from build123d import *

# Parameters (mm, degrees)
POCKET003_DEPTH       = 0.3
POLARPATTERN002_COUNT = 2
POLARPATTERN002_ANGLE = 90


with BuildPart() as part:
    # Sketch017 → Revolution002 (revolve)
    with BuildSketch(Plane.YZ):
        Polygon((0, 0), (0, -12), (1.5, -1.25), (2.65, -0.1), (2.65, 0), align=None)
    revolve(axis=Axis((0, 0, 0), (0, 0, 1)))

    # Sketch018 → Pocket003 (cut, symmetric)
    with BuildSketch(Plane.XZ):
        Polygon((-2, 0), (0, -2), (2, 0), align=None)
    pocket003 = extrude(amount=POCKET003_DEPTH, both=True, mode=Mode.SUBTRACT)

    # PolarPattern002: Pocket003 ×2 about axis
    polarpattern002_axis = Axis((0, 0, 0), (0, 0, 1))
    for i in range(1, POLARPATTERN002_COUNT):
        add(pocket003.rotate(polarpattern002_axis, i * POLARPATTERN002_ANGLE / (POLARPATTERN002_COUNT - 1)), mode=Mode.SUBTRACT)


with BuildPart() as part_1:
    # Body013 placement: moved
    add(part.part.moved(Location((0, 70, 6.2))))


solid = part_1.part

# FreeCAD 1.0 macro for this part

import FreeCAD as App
import Part
import Sketcher

V = App.Vector
Q = App.Units.Quantity


def add_polygon(sketch, points):
    """Adds a closed chain of lines whose ends are joined by coincident constraints."""
    first, n = sketch.GeometryCount, len(points)
    for a, b in zip(points, points[1:] + points[:1]):
        sketch.addGeometry(Part.LineSegment(App.Vector(*a, 0), App.Vector(*b, 0)), False)
    for i in range(n):
        sketch.addConstraint(Sketcher.Constraint("Coincident", first + i, 2, first + (i + 1) % n, 1))

doc = App.newDocument("Part")
params = doc.addObject("Spreadsheet::Sheet", "Params")
for row, (alias, value) in enumerate([
    ("sketch1_height", "12 mm"),
    ("sketch1_height2", "0.1 mm"),
    ("sketch1_width", "2.65 mm"),
    ("revolution_angle", "360 deg"),
    ("sketch2_width", "4 mm"),
    ("pocket1_length", "0.6 mm"),
], start=1):
    params.set(f"A{row}", alias)
    params.set(f"B{row}", "=" + value)
    params.setAlias(f"B{row}", alias)

body = doc.addObject("PartDesign::Body", "Body")

# Sketch on YZ plane
sketch1 = body.newObject("Sketcher::SketchObject", "Sketch")
sketch1.AttachmentSupport = (doc.getObject("YZ_Plane"), [""])
sketch1.MapMode = "FlatFace"
add_polygon(sketch1, [(0, 0), (0, -12), (1.5, -1.25), (2.65, -0.1), (2.65, 0)])  # lines 0-4
sketch1.addConstraint(Sketcher.Constraint("Vertical", 0))
sketch1.addConstraint(Sketcher.Constraint("Vertical", 3))
sketch1.addConstraint(Sketcher.Constraint("Horizontal", 4))
sketch1.addConstraint(Sketcher.Constraint("Coincident", 4, 2, -1, 1))
sketch1.addConstraint(Sketcher.Constraint("DistanceY", 0, 2, 0, 1, Q("12 mm")))
sketch1.addConstraint(Sketcher.Constraint("Angle", 2, Q("45 deg")))
sketch1.addConstraint(Sketcher.Constraint("DistanceY", 3, 1, 3, 2, Q("0.1 mm")))
sketch1.addConstraint(Sketcher.Constraint("DistanceX", 4, 2, 4, 1, Q("2.65 mm")))
sketch1.addConstraint(Sketcher.Constraint("DistanceX", -1, 1, 1, 2, Q("1.5 mm")))
sketch1.setExpression("Constraints[9]", "Params.sketch1_height")
sketch1.setExpression("Constraints[11]", "Params.sketch1_height2")
sketch1.setExpression("Constraints[12]", "Params.sketch1_width")
revolution = body.newObject("PartDesign::Revolution", "Revolution")
revolution.Profile = sketch1
revolution.ReferenceAxis = (sketch1, ["V_Axis"])
revolution.setExpression("Angle", "Params.revolution_angle")

# Sketch on XZ plane
sketch2 = body.newObject("Sketcher::SketchObject", "Sketch001")
sketch2.AttachmentSupport = (doc.getObject("XZ_Plane"), [""])
sketch2.MapMode = "FlatFace"
add_polygon(sketch2, [(-2, 0), (0, -2), (2, 0)])  # lines 0-2
sketch2.addConstraint(Sketcher.Constraint("Horizontal", 2))
sketch2.addConstraint(Sketcher.Constraint("Symmetric", 1, 2, 2, 2, -1, 1))
sketch2.addConstraint(Sketcher.Constraint("PointOnObject", 0, 2, -2))
sketch2.addConstraint(Sketcher.Constraint("Perpendicular", 0, 1))
sketch2.addConstraint(Sketcher.Constraint("DistanceX", 2, 2, 2, 1, Q("4 mm")))
sketch2.setExpression("Constraints[7]", "Params.sketch2_width")
pocket1 = body.newObject("PartDesign::Pocket", "Pocket")
pocket1.Profile = sketch2
pocket1.setExpression("Length", "Params.pocket1_length")
pocket1.Midplane = True
doc.recompute()

polarpattern = body.newObject("PartDesign::PolarPattern", "PolarPattern")
polarpattern.Originals = [pocket1]
polarpattern.Axis = (doc.getObject("Z_Axis"), [""])
polarpattern.Angle = 90
polarpattern.Occurrences = 2
body.Tip = polarpattern
body2 = doc.addObject("PartDesign::Body", "Body001")
doc.recompute()

body.Placement = App.Placement(V(0, 70, 6.2), App.Rotation(V(0, 0, 1), 0))
boolean = body2.newObject("PartDesign::Boolean", "Boolean")
boolean.Type = "Fuse"
boolean.addObjects([body])

doc.recompute()
